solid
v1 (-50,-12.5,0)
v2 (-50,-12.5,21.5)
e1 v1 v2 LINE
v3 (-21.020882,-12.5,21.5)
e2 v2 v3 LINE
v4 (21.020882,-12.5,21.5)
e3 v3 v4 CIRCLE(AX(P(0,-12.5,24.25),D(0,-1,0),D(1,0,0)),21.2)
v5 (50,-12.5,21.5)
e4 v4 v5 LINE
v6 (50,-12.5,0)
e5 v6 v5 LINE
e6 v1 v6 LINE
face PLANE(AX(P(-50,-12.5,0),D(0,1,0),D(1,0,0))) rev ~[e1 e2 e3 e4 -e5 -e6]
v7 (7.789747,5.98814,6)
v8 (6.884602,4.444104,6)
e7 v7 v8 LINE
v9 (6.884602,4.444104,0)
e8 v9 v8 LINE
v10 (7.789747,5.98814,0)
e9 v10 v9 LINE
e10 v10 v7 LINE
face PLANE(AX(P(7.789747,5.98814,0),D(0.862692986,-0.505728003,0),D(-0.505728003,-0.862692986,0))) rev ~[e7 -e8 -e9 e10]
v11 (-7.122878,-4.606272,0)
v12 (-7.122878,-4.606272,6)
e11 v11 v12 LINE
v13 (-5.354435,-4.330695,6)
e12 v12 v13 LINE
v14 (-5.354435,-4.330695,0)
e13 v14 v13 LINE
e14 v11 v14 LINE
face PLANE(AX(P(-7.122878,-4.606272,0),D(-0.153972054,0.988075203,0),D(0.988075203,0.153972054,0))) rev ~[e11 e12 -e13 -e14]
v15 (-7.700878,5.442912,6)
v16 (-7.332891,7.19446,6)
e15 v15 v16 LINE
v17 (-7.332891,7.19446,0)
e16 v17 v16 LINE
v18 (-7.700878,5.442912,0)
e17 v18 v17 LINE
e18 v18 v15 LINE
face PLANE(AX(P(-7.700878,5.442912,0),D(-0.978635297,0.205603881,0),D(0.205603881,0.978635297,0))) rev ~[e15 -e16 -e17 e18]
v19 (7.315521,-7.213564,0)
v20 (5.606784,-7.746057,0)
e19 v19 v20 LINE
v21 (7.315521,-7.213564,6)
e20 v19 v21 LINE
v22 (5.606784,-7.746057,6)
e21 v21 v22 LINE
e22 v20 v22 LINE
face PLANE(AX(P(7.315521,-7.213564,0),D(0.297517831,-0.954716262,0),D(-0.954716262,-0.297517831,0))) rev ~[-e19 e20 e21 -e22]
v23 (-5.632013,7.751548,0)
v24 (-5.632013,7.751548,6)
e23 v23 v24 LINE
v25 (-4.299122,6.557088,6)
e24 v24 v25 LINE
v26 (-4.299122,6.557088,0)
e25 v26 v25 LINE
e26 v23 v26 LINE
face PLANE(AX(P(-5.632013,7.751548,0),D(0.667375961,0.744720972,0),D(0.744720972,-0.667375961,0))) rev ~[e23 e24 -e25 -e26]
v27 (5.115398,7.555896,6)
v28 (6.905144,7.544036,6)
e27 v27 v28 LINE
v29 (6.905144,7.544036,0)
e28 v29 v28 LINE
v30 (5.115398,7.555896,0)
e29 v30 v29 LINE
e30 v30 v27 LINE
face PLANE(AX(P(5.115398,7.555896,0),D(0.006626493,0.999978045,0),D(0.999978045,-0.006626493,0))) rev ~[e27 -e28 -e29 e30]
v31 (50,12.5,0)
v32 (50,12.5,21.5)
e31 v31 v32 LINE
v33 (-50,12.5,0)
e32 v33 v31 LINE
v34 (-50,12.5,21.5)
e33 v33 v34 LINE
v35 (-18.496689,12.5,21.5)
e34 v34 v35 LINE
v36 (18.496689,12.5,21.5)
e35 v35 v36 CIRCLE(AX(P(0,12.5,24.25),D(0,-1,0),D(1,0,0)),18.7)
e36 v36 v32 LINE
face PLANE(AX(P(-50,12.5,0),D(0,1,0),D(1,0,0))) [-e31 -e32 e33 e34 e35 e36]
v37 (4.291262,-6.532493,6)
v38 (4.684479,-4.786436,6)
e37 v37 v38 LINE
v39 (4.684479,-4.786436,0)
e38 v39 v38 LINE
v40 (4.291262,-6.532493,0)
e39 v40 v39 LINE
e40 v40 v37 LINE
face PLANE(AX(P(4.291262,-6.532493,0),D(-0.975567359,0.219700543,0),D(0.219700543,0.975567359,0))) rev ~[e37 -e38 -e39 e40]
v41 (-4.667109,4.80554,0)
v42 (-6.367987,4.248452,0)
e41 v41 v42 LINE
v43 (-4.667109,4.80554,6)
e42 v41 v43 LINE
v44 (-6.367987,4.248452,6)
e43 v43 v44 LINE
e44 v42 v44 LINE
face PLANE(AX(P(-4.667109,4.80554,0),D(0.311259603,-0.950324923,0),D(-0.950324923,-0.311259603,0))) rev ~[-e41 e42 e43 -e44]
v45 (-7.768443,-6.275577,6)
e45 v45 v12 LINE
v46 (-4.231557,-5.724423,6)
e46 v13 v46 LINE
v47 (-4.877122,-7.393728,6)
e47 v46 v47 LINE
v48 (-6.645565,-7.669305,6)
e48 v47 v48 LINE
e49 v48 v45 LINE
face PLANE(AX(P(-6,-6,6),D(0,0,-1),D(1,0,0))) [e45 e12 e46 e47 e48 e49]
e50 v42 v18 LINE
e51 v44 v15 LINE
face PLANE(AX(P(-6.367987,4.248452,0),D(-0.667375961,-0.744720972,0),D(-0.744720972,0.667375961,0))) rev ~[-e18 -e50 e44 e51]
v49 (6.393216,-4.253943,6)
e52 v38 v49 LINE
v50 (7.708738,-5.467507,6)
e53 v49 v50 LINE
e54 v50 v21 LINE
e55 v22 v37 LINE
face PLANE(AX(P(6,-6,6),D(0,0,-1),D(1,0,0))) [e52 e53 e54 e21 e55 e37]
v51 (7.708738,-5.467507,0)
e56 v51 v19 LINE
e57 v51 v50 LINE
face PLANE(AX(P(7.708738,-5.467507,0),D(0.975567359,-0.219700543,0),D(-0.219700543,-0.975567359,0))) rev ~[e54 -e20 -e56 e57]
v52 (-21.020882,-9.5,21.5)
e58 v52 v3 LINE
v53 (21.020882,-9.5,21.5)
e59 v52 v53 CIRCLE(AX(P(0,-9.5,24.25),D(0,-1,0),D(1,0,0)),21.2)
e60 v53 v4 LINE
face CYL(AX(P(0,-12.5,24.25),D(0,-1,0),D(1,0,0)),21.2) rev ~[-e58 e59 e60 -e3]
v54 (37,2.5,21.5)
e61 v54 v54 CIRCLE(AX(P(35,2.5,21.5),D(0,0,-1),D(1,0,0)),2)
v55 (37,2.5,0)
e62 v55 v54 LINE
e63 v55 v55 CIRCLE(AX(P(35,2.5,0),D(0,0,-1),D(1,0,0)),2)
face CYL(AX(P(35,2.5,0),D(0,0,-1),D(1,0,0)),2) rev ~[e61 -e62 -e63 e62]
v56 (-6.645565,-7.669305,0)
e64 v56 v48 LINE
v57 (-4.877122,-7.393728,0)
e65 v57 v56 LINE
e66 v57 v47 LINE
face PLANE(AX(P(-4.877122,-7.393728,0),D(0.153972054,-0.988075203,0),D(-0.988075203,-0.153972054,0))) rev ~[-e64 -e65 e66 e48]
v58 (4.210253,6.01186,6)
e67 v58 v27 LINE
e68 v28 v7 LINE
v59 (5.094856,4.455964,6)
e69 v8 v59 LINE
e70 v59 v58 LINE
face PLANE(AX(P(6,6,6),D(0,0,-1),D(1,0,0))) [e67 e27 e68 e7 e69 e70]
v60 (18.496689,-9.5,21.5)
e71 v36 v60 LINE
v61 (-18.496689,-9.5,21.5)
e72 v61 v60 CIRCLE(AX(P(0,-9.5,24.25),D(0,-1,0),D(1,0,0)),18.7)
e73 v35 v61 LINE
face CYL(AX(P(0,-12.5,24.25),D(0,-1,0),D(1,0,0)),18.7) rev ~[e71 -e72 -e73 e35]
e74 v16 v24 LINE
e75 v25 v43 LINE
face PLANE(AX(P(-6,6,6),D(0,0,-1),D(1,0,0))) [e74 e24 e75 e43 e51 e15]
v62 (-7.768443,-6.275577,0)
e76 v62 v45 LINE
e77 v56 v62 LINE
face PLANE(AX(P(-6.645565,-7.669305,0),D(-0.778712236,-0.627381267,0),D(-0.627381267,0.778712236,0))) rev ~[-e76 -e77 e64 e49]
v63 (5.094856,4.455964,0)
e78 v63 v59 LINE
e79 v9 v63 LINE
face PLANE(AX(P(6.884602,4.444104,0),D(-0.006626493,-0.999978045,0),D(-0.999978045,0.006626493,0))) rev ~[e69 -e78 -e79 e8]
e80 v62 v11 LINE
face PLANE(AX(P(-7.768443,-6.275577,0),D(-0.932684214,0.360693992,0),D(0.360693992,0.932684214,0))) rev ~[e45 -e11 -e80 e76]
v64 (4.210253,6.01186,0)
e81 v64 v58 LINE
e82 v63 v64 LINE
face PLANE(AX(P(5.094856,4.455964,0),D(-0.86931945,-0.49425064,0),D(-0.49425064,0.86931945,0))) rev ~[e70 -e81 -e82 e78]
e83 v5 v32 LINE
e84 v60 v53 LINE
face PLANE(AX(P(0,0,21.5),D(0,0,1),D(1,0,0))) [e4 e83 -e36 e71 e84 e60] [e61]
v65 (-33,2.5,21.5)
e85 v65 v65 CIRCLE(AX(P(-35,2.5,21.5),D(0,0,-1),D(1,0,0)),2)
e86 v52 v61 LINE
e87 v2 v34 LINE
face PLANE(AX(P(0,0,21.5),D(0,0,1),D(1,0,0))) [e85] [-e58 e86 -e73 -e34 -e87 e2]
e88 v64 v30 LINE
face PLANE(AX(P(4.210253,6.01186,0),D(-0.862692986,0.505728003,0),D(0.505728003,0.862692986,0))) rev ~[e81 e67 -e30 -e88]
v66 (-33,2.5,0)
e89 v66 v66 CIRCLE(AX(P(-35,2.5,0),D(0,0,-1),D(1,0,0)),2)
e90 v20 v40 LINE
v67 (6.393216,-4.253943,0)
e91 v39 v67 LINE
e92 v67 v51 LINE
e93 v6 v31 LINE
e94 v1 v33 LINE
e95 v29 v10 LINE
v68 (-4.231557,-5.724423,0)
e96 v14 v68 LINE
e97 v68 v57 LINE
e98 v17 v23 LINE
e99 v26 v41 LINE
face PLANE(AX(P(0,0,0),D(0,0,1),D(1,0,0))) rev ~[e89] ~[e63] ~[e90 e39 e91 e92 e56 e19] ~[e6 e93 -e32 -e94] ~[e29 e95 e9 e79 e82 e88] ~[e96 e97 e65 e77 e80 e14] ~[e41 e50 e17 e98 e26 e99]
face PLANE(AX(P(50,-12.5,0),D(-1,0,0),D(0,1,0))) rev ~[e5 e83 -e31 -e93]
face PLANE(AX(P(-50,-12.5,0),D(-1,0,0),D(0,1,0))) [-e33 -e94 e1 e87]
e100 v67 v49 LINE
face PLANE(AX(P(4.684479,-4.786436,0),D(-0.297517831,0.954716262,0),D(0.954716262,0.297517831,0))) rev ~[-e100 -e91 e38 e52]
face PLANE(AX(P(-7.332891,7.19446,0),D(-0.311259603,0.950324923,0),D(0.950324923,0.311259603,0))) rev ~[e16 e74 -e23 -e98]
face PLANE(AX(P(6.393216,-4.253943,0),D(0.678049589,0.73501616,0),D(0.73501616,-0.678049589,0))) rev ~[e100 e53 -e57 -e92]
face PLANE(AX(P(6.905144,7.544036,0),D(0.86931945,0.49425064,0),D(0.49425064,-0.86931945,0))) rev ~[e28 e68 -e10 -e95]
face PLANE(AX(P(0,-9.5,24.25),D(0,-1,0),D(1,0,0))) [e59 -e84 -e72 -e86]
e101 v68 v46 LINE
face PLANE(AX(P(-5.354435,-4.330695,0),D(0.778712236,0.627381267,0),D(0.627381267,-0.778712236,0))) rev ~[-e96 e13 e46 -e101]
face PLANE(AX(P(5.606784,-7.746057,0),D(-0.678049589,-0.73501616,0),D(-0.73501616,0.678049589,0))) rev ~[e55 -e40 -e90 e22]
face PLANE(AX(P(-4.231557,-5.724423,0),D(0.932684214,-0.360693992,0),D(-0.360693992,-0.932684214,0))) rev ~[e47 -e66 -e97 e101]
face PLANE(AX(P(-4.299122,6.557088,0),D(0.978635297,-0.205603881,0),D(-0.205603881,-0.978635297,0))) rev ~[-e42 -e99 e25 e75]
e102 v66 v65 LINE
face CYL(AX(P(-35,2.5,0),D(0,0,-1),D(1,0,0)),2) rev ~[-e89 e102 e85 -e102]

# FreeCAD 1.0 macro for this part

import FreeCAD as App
import Part
import Sketcher
from FreeCAD import Vector

doc = App.newDocument("Part")
body = doc.addObject("PartDesign::Body", "Body")

# Sketch on XY plane
sketch1 = body.newObject("Sketcher::SketchObject", "Sketch")
sketch1.AttachmentSupport = (doc.getObject("XY_Plane"), [""])
sketch1.MapMode = "FlatFace"
sketch1.addGeometry(Part.LineSegment(Vector(-50, 12, 0), Vector(-50, -12, 0)), False)
sketch1.addGeometry(Part.LineSegment(Vector(-50, -12, 0), Vector(50, -12, 0)), False)
sketch1.addGeometry(Part.LineSegment(Vector(50, -12, 0), Vector(50, 12, 0)), False)
sketch1.addGeometry(Part.LineSegment(Vector(50, 12, 0), Vector(-50, 12, 0)), False)
sketch1.addConstraint(Sketcher.Constraint("Coincident", 0, 2, 1, 1))
sketch1.addConstraint(Sketcher.Constraint("Coincident", 1, 2, 2, 1))
sketch1.addConstraint(Sketcher.Constraint("Coincident", 2, 2, 3, 1))
sketch1.addConstraint(Sketcher.Constraint("Coincident", 3, 2, 0, 1))
sketch1.addConstraint(Sketcher.Constraint("Vertical", 0))
sketch1.addConstraint(Sketcher.Constraint("Horizontal", 1))
sketch1.addConstraint(Sketcher.Constraint("Vertical", 2))
sketch1.addConstraint(Sketcher.Constraint("Horizontal", 3))
sketch1.addConstraint(Sketcher.Constraint("Symmetric", 0, 2, 2, 2, -1, 1))
sketch1.addConstraint(Sketcher.Constraint("DistanceX", 1, 1, 1, 2, 100.0))
sketch1.addConstraint(Sketcher.Constraint("DistanceY", 0, 2, 0, 1, 25.0))
pad1 = body.newObject("PartDesign::Pad", "Pad")
pad1.Profile = sketch1
pad1.Length = 21.5

# Sketch on XZ plane
sketch2 = body.newObject("Sketcher::SketchObject", "Sketch001")
sketch2.AttachmentSupport = (doc.getObject("XZ_Plane"), [""])
sketch2.MapMode = "FlatFace"
sketch2.AttachmentOffset = App.Placement(Vector(0, 0, 12.5), App.Rotation())
sketch2.addGeometry(Part.Circle(Vector(0, 24, 0), Vector(0, 0, 1), 19), False)
sketch2.addConstraint(Sketcher.Constraint("PointOnObject", 0, 3, -2))
sketch2.addConstraint(Sketcher.Constraint("Diameter", 0, 37.4))
sketch2.addConstraint(Sketcher.Constraint("DistanceY", -1, 1, 0, 3, 24.25))
pocket1 = body.newObject("PartDesign::Pocket", "Pocket")
pocket1.Profile = sketch2
pocket1.Type = "ThroughAll"

# Sketch on XZ plane
sketch3 = body.newObject("Sketcher::SketchObject", "Sketch002")
sketch3.AttachmentSupport = (doc.getObject("XZ_Plane"), [""])
sketch3.MapMode = "FlatFace"
sketch3.AttachmentOffset = App.Placement(Vector(0, 0, 12.5), App.Rotation())
sketch3.addGeometry(Part.Circle(Vector(0, 24, 0), Vector(0, 0, 1), 21), False)
sketch3.addConstraint(Sketcher.Constraint("PointOnObject", 0, 3, -2))
sketch3.addConstraint(Sketcher.Constraint("Diameter", 0, 42.4))
sketch3.addConstraint(Sketcher.Constraint("DistanceY", -1, 1, 0, 3, 24.25))
pocket2 = body.newObject("PartDesign::Pocket", "Pocket001")
pocket2.Profile = sketch3
pocket2.Length = 3

# Sketch on XY plane
sketch4 = body.newObject("Sketcher::SketchObject", "Sketch003")
sketch4.AttachmentSupport = (doc.getObject("XY_Plane"), [""])
sketch4.MapMode = "FlatFace"
sketch4.addGeometry(Part.Circle(Vector(-35, 2.5, 0), Vector(0, 0, 1), 2), False)
sketch4.addGeometry(Part.Circle(Vector(35, 2.5, 0), Vector(0, 0, 1), 2), False)
sketch4.addConstraint(Sketcher.Constraint("Equal", 0, 1))
sketch4.addConstraint(Sketcher.Constraint("Symmetric", 0, 3, 1, 3, -2))
sketch4.addConstraint(Sketcher.Constraint("Diameter", 0, 4.0))
sketch4.addConstraint(Sketcher.Constraint("DistanceX", 0, 3, -1, 1, 35.0))
sketch4.addConstraint(Sketcher.Constraint("DistanceY", -1, 1, 0, 3, 2.5))
pocket3 = body.newObject("PartDesign::Pocket", "Pocket002")
pocket3.Profile = sketch4
pocket3.Type = "ThroughAll"
pocket3.Reversed = True

# Sketch on XY plane
sketch5 = body.newObject("Sketcher::SketchObject", "Sketch004")
sketch5.AttachmentSupport = (doc.getObject("XY_Plane"), [""])
sketch5.MapMode = "FlatFace"
sketch5.addGeometry(Part.LineSegment(Vector(-4.2, -5.7, 0), Vector(-4.9, -7.4, 0)), False)
sketch5.addGeometry(Part.LineSegment(Vector(-4.9, -7.4, 0), Vector(-6.6, -7.7, 0)), False)
sketch5.addGeometry(Part.LineSegment(Vector(-6.6, -7.7, 0), Vector(-7.8, -6.3, 0)), False)
sketch5.addGeometry(Part.LineSegment(Vector(-7.8, -6.3, 0), Vector(-7.1, -4.6, 0)), False)
sketch5.addGeometry(Part.LineSegment(Vector(-7.1, -4.6, 0), Vector(-5.4, -4.3, 0)), False)
sketch5.addGeometry(Part.LineSegment(Vector(-5.4, -4.3, 0), Vector(-4.2, -5.7, 0)), False)
sketch5.addGeometry(Part.LineSegment(Vector(6.4, -4.3, 0), Vector(7.7, -5.5, 0)), False)
sketch5.addGeometry(Part.LineSegment(Vector(7.7, -5.5, 0), Vector(7.3, -7.2, 0)), False)
sketch5.addGeometry(Part.LineSegment(Vector(7.3, -7.2, 0), Vector(5.6, -7.7, 0)), False)
sketch5.addGeometry(Part.LineSegment(Vector(5.6, -7.7, 0), Vector(4.3, -6.5, 0)), False)
sketch5.addGeometry(Part.LineSegment(Vector(4.3, -6.5, 0), Vector(4.7, -4.8, 0)), False)
sketch5.addGeometry(Part.LineSegment(Vector(4.7, -4.8, 0), Vector(6.4, -4.3, 0)), False)
sketch5.addGeometry(Part.LineSegment(Vector(-5.6, 7.8, 0), Vector(-4.3, 6.6, 0)), False)
sketch5.addGeometry(Part.LineSegment(Vector(-4.3, 6.6, 0), Vector(-4.7, 4.8, 0)), False)
sketch5.addGeometry(Part.LineSegment(Vector(-4.7, 4.8, 0), Vector(-6.4, 4.2, 0)), False)
sketch5.addGeometry(Part.LineSegment(Vector(-6.4, 4.2, 0), Vector(-7.7, 5.4, 0)), False)
sketch5.addGeometry(Part.LineSegment(Vector(-7.7, 5.4, 0), Vector(-7.3, 7.2, 0)), False)
sketch5.addGeometry(Part.LineSegment(Vector(-7.3, 7.2, 0), Vector(-5.6, 7.8, 0)), False)
sketch5.addGeometry(Part.LineSegment(Vector(6.9, 7.5, 0), Vector(7.8, 6, 0)), False)
sketch5.addGeometry(Part.LineSegment(Vector(7.8, 6, 0), Vector(6.9, 4.4, 0)), False)
sketch5.addGeometry(Part.LineSegment(Vector(6.9, 4.4, 0), Vector(5.1, 4.5, 0)), False)
sketch5.addGeometry(Part.LineSegment(Vector(5.1, 4.5, 0), Vector(4.2, 6, 0)), False)
sketch5.addGeometry(Part.LineSegment(Vector(4.2, 6, 0), Vector(5.1, 7.6, 0)), False)
sketch5.addGeometry(Part.LineSegment(Vector(5.1, 7.6, 0), Vector(6.9, 7.5, 0)), False)
sketch5.addConstraint(Sketcher.Constraint("Coincident", 0, 2, 1, 1))
sketch5.addConstraint(Sketcher.Constraint("Coincident", 1, 2, 2, 1))
sketch5.addConstraint(Sketcher.Constraint("Coincident", 2, 2, 3, 1))
sketch5.addConstraint(Sketcher.Constraint("Coincident", 3, 2, 4, 1))
sketch5.addConstraint(Sketcher.Constraint("Coincident", 4, 2, 5, 1))
sketch5.addConstraint(Sketcher.Constraint("Coincident", 5, 2, 0, 1))
sketch5.addConstraint(Sketcher.Constraint("Coincident", 6, 2, 7, 1))
sketch5.addConstraint(Sketcher.Constraint("Coincident", 7, 2, 8, 1))
sketch5.addConstraint(Sketcher.Constraint("Coincident", 8, 2, 9, 1))
sketch5.addConstraint(Sketcher.Constraint("Coincident", 9, 2, 10, 1))
sketch5.addConstraint(Sketcher.Constraint("Coincident", 10, 2, 11, 1))
sketch5.addConstraint(Sketcher.Constraint("Coincident", 11, 2, 6, 1))
sketch5.addConstraint(Sketcher.Constraint("Coincident", 12, 2, 13, 1))
sketch5.addConstraint(Sketcher.Constraint("Coincident", 13, 2, 14, 1))
sketch5.addConstraint(Sketcher.Constraint("Coincident", 14, 2, 15, 1))
sketch5.addConstraint(Sketcher.Constraint("Coincident", 15, 2, 16, 1))
sketch5.addConstraint(Sketcher.Constraint("Coincident", 16, 2, 17, 1))
sketch5.addConstraint(Sketcher.Constraint("Coincident", 17, 2, 12, 1))
sketch5.addConstraint(Sketcher.Constraint("Coincident", 18, 2, 19, 1))
sketch5.addConstraint(Sketcher.Constraint("Coincident", 19, 2, 20, 1))
sketch5.addConstraint(Sketcher.Constraint("Coincident", 20, 2, 21, 1))
sketch5.addConstraint(Sketcher.Constraint("Coincident", 21, 2, 22, 1))
sketch5.addConstraint(Sketcher.Constraint("Coincident", 22, 2, 23, 1))
sketch5.addConstraint(Sketcher.Constraint("Coincident", 23, 2, 18, 1))
sketch5.addConstraint(Sketcher.Constraint("Parallel", 0, 3))
sketch5.addConstraint(Sketcher.Constraint("Parallel", 1, 4))
sketch5.addConstraint(Sketcher.Constraint("Parallel", 2, 5))
sketch5.addConstraint(Sketcher.Constraint("Parallel", 6, 9))
sketch5.addConstraint(Sketcher.Constraint("Parallel", 7, 10))
sketch5.addConstraint(Sketcher.Constraint("Parallel", 8, 11))
sketch5.addConstraint(Sketcher.Constraint("Parallel", 12, 15))
sketch5.addConstraint(Sketcher.Constraint("Parallel", 13, 16))
sketch5.addConstraint(Sketcher.Constraint("Parallel", 14, 17))
sketch5.addConstraint(Sketcher.Constraint("Parallel", 18, 21))
sketch5.addConstraint(Sketcher.Constraint("Parallel", 19, 22))
sketch5.addConstraint(Sketcher.Constraint("Parallel", 20, 23))
sketch5.addConstraint(Sketcher.Constraint("Equal", 0, 1))
sketch5.addConstraint(Sketcher.Constraint("Equal", 1, 2))
sketch5.addConstraint(Sketcher.Constraint("Equal", 2, 3))
sketch5.addConstraint(Sketcher.Constraint("Equal", 5, 6))
sketch5.addConstraint(Sketcher.Constraint("Equal", 6, 7))
sketch5.addConstraint(Sketcher.Constraint("Equal", 7, 8))
sketch5.addConstraint(Sketcher.Constraint("Equal", 8, 9))
sketch5.addConstraint(Sketcher.Constraint("Equal", 11, 12))
sketch5.addConstraint(Sketcher.Constraint("Equal", 12, 13))
sketch5.addConstraint(Sketcher.Constraint("Equal", 13, 14))
sketch5.addConstraint(Sketcher.Constraint("Equal", 14, 15))
sketch5.addConstraint(Sketcher.Constraint("Equal", 17, 18))
sketch5.addConstraint(Sketcher.Constraint("Equal", 18, 19))
sketch5.addConstraint(Sketcher.Constraint("Equal", 19, 20))
sketch5.addConstraint(Sketcher.Constraint("Equal", 20, 21))
sketch5.addConstraint(Sketcher.Constraint("DistanceX", 0, 2, 12, 2, 0.578))
sketch5.addConstraint(Sketcher.Constraint("DistanceX", 15, 2, 3, 2, 0.578))
sketch5.addConstraint(Sketcher.Constraint("DistanceY", 13, 2, 18, 2, 1.1826))
sketch5.addConstraint(Sketcher.Constraint("DistanceY", 10, 2, 20, 2, 9.2424))
sketch5.addConstraint(Sketcher.Constraint("DistanceY", 0, 2, -1, 1, 7.393728))
sketch5.addConstraint(Sketcher.Constraint("DistanceY", 3, 2, -1, 1, 4.606272))
sketch5.addConstraint(Sketcher.Constraint("DistanceX", -1, 1, 6, 2, 7.708738))
sketch5.addConstraint(Sketcher.Constraint("DistanceX", -1, 1, 7, 2, 7.315521))
sketch5.addConstraint(Sketcher.Constraint("DistanceX", -1, 1, 9, 2, 4.291262))
sketch5.addConstraint(Sketcher.Constraint("DistanceX", 12, 2, -1, 1, 4.299122))
sketch5.addConstraint(Sketcher.Constraint("DistanceY", -1, 1, 12, 2, 6.557088))
sketch5.addConstraint(Sketcher.Constraint("DistanceX", 13, 2, -1, 1, 4.667109))
sketch5.addConstraint(Sketcher.Constraint("DistanceY", -1, 1, 13, 2, 4.80554))
sketch5.addConstraint(Sketcher.Constraint("DistanceX", 15, 2, -1, 1, 7.700878))
sketch5.addConstraint(Sketcher.Constraint("DistanceY", -1, 1, 15, 2, 5.442912))
sketch5.addConstraint(Sketcher.Constraint("DistanceY", -1, 1, 21, 2, 6.01186))
sketch5.addConstraint(Sketcher.Constraint("DistanceX", 2, 2, 0, 2, 2.891321))
sketch5.addConstraint(Sketcher.Constraint("DistanceY", 0, 2, 6, 2, 1.926221))
sketch5.addConstraint(Sketcher.Constraint("DistanceY", 8, 2, 6, 2, 2.27855))
sketch5.addConstraint(Sketcher.Constraint("DistanceX", 11, 2, 18, 2, 1.396531))
sketch5.addConstraint(Sketcher.Constraint("DistanceY", 10, 2, 19, 2, 9.23054))
pocket4 = body.newObject("PartDesign::Pocket", "Pocket003")
pocket4.Profile = sketch5
pocket4.Length = 6
pocket4.Reversed = True

doc.recompute()
